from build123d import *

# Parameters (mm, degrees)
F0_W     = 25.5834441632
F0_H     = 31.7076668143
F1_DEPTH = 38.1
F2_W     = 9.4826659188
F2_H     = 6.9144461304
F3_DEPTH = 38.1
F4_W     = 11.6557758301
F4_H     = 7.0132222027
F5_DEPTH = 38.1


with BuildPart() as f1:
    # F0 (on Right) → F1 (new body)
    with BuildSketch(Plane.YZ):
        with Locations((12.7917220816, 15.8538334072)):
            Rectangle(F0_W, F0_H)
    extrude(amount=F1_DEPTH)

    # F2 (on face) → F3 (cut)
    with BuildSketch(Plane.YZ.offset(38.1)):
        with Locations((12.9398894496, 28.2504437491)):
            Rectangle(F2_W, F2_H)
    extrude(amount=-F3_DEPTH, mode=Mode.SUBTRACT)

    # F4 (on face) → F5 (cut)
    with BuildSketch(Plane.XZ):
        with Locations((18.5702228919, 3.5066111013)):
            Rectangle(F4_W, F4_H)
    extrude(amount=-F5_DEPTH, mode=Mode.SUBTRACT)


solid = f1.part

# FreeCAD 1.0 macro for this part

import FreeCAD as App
import Part
import Sketcher
Q = App.Units.Quantity

doc = App.newDocument("Part")
body = doc.addObject("PartDesign::Body", "Body")

# Sketch on YZ plane
sketch1 = doc.addObject("Sketcher::SketchObject", "Sketch")
body.addObject(sketch1)
sketch1.AttachmentSupport = (doc.YZ_Plane, [""])
sketch1.MapMode = "FlatFace"
sketch1.addGeometry([
    Part.LineSegment(App.Vector(0, 32, 0), App.Vector(0, 0, 0)),
    Part.LineSegment(App.Vector(0, 0, 0), App.Vector(26, 0, 0)),
    Part.LineSegment(App.Vector(26, 0, 0), App.Vector(26, 32, 0)),
    Part.LineSegment(App.Vector(26, 32, 0), App.Vector(0, 32, 0)),
], False)
sketch1.addConstraint([
    Sketcher.Constraint("Coincident", 0, 2, 1, 1),
    Sketcher.Constraint("Coincident", 1, 2, 2, 1),
    Sketcher.Constraint("Coincident", 2, 2, 3, 1),
    Sketcher.Constraint("Coincident", 3, 2, 0, 1),
    Sketcher.Constraint("Vertical", 0),
    Sketcher.Constraint("Horizontal", 1),
    Sketcher.Constraint("Vertical", 2),
    Sketcher.Constraint("Horizontal", 3),
    Sketcher.Constraint("Coincident", 0, 2, -1, 1),
    Sketcher.Constraint("DistanceX", 1, 1, 1, 2, 25.583444),
    Sketcher.Constraint("DistanceY", 0, 2, 0, 1, 31.707667),
])
pad1 = doc.addObject("PartDesign::Pad", "Pad")
body.addObject(pad1)
pad1.Profile = sketch1
pad1.Length = Q("1.5 in")

# Sketch on YZ plane
sketch2 = doc.addObject("Sketcher::SketchObject", "Sketch001")
body.addObject(sketch2)
sketch2.AttachmentSupport = (doc.YZ_Plane, [""])
sketch2.MapMode = "FlatFace"
sketch2.AttachmentOffset = App.Placement(App.Vector(0, 0, 1.5 * 25.4), App.Rotation())
sketch2.addGeometry([
    Part.LineSegment(App.Vector(8, 32, 0), App.Vector(8, 25, 0)),
    Part.LineSegment(App.Vector(8, 25, 0), App.Vector(18, 25, 0)),
    Part.LineSegment(App.Vector(18, 25, 0), App.Vector(18, 32, 0)),
    Part.LineSegment(App.Vector(18, 32, 0), App.Vector(8, 32, 0)),
], False)
sketch2.addConstraint([
    Sketcher.Constraint("Coincident", 0, 2, 1, 1),
    Sketcher.Constraint("Coincident", 1, 2, 2, 1),
    Sketcher.Constraint("Coincident", 2, 2, 3, 1),
    Sketcher.Constraint("Coincident", 3, 2, 0, 1),
    Sketcher.Constraint("Vertical", 0),
    Sketcher.Constraint("Horizontal", 1),
    Sketcher.Constraint("Vertical", 2),
    Sketcher.Constraint("Horizontal", 3),
    Sketcher.Constraint("DistanceX", 1, 1, 1, 2, 9.482666),
    Sketcher.Constraint("DistanceY", 0, 2, 0, 1, 6.914446),
    Sketcher.Constraint("DistanceY", -1, 1, 0, 2, 24.793221),
    Sketcher.Constraint("DistanceX", -1, 1, 0, 2, 8.198556),
])
pocket1 = doc.addObject("PartDesign::Pocket", "Pocket")
body.addObject(pocket1)
pocket1.Profile = sketch2
pocket1.Length = Q("1.5 in")

# Sketch on XZ plane
sketch3 = doc.addObject("Sketcher::SketchObject", "Sketch002")
body.addObject(sketch3)
sketch3.AttachmentSupport = (doc.XZ_Plane, [""])
sketch3.MapMode = "FlatFace"
sketch3.addGeometry([
    Part.LineSegment(App.Vector(13, 7, 0), App.Vector(13, 0, 0)),
    Part.LineSegment(App.Vector(13, 0, 0), App.Vector(24, 0, 0)),
    Part.LineSegment(App.Vector(24, 0, 0), App.Vector(24, 7, 0)),
    Part.LineSegment(App.Vector(24, 7, 0), App.Vector(13, 7, 0)),
], False)
sketch3.addConstraint([
    Sketcher.Constraint("Coincident", 0, 2, 1, 1),
    Sketcher.Constraint("Coincident", 1, 2, 2, 1),
    Sketcher.Constraint("Coincident", 2, 2, 3, 1),
    Sketcher.Constraint("Coincident", 3, 2, 0, 1),
    Sketcher.Constraint("Vertical", 0),
    Sketcher.Constraint("Horizontal", 1),
    Sketcher.Constraint("Vertical", 2),
    Sketcher.Constraint("Horizontal", 3),
    Sketcher.Constraint("PointOnObject", 0, 2, -1),
    Sketcher.Constraint("DistanceX", 1, 1, 1, 2, 11.655776),
    Sketcher.Constraint("DistanceY", 0, 2, 0, 1, 7.013222),
    Sketcher.Constraint("DistanceX", -1, 1, 1, 2, 24.398111),
])
pocket2 = doc.addObject("PartDesign::Pocket", "Pocket001")
body.addObject(pocket2)
pocket2.Profile = sketch3
pocket2.Length = Q("1.5 in")

doc.recompute()
